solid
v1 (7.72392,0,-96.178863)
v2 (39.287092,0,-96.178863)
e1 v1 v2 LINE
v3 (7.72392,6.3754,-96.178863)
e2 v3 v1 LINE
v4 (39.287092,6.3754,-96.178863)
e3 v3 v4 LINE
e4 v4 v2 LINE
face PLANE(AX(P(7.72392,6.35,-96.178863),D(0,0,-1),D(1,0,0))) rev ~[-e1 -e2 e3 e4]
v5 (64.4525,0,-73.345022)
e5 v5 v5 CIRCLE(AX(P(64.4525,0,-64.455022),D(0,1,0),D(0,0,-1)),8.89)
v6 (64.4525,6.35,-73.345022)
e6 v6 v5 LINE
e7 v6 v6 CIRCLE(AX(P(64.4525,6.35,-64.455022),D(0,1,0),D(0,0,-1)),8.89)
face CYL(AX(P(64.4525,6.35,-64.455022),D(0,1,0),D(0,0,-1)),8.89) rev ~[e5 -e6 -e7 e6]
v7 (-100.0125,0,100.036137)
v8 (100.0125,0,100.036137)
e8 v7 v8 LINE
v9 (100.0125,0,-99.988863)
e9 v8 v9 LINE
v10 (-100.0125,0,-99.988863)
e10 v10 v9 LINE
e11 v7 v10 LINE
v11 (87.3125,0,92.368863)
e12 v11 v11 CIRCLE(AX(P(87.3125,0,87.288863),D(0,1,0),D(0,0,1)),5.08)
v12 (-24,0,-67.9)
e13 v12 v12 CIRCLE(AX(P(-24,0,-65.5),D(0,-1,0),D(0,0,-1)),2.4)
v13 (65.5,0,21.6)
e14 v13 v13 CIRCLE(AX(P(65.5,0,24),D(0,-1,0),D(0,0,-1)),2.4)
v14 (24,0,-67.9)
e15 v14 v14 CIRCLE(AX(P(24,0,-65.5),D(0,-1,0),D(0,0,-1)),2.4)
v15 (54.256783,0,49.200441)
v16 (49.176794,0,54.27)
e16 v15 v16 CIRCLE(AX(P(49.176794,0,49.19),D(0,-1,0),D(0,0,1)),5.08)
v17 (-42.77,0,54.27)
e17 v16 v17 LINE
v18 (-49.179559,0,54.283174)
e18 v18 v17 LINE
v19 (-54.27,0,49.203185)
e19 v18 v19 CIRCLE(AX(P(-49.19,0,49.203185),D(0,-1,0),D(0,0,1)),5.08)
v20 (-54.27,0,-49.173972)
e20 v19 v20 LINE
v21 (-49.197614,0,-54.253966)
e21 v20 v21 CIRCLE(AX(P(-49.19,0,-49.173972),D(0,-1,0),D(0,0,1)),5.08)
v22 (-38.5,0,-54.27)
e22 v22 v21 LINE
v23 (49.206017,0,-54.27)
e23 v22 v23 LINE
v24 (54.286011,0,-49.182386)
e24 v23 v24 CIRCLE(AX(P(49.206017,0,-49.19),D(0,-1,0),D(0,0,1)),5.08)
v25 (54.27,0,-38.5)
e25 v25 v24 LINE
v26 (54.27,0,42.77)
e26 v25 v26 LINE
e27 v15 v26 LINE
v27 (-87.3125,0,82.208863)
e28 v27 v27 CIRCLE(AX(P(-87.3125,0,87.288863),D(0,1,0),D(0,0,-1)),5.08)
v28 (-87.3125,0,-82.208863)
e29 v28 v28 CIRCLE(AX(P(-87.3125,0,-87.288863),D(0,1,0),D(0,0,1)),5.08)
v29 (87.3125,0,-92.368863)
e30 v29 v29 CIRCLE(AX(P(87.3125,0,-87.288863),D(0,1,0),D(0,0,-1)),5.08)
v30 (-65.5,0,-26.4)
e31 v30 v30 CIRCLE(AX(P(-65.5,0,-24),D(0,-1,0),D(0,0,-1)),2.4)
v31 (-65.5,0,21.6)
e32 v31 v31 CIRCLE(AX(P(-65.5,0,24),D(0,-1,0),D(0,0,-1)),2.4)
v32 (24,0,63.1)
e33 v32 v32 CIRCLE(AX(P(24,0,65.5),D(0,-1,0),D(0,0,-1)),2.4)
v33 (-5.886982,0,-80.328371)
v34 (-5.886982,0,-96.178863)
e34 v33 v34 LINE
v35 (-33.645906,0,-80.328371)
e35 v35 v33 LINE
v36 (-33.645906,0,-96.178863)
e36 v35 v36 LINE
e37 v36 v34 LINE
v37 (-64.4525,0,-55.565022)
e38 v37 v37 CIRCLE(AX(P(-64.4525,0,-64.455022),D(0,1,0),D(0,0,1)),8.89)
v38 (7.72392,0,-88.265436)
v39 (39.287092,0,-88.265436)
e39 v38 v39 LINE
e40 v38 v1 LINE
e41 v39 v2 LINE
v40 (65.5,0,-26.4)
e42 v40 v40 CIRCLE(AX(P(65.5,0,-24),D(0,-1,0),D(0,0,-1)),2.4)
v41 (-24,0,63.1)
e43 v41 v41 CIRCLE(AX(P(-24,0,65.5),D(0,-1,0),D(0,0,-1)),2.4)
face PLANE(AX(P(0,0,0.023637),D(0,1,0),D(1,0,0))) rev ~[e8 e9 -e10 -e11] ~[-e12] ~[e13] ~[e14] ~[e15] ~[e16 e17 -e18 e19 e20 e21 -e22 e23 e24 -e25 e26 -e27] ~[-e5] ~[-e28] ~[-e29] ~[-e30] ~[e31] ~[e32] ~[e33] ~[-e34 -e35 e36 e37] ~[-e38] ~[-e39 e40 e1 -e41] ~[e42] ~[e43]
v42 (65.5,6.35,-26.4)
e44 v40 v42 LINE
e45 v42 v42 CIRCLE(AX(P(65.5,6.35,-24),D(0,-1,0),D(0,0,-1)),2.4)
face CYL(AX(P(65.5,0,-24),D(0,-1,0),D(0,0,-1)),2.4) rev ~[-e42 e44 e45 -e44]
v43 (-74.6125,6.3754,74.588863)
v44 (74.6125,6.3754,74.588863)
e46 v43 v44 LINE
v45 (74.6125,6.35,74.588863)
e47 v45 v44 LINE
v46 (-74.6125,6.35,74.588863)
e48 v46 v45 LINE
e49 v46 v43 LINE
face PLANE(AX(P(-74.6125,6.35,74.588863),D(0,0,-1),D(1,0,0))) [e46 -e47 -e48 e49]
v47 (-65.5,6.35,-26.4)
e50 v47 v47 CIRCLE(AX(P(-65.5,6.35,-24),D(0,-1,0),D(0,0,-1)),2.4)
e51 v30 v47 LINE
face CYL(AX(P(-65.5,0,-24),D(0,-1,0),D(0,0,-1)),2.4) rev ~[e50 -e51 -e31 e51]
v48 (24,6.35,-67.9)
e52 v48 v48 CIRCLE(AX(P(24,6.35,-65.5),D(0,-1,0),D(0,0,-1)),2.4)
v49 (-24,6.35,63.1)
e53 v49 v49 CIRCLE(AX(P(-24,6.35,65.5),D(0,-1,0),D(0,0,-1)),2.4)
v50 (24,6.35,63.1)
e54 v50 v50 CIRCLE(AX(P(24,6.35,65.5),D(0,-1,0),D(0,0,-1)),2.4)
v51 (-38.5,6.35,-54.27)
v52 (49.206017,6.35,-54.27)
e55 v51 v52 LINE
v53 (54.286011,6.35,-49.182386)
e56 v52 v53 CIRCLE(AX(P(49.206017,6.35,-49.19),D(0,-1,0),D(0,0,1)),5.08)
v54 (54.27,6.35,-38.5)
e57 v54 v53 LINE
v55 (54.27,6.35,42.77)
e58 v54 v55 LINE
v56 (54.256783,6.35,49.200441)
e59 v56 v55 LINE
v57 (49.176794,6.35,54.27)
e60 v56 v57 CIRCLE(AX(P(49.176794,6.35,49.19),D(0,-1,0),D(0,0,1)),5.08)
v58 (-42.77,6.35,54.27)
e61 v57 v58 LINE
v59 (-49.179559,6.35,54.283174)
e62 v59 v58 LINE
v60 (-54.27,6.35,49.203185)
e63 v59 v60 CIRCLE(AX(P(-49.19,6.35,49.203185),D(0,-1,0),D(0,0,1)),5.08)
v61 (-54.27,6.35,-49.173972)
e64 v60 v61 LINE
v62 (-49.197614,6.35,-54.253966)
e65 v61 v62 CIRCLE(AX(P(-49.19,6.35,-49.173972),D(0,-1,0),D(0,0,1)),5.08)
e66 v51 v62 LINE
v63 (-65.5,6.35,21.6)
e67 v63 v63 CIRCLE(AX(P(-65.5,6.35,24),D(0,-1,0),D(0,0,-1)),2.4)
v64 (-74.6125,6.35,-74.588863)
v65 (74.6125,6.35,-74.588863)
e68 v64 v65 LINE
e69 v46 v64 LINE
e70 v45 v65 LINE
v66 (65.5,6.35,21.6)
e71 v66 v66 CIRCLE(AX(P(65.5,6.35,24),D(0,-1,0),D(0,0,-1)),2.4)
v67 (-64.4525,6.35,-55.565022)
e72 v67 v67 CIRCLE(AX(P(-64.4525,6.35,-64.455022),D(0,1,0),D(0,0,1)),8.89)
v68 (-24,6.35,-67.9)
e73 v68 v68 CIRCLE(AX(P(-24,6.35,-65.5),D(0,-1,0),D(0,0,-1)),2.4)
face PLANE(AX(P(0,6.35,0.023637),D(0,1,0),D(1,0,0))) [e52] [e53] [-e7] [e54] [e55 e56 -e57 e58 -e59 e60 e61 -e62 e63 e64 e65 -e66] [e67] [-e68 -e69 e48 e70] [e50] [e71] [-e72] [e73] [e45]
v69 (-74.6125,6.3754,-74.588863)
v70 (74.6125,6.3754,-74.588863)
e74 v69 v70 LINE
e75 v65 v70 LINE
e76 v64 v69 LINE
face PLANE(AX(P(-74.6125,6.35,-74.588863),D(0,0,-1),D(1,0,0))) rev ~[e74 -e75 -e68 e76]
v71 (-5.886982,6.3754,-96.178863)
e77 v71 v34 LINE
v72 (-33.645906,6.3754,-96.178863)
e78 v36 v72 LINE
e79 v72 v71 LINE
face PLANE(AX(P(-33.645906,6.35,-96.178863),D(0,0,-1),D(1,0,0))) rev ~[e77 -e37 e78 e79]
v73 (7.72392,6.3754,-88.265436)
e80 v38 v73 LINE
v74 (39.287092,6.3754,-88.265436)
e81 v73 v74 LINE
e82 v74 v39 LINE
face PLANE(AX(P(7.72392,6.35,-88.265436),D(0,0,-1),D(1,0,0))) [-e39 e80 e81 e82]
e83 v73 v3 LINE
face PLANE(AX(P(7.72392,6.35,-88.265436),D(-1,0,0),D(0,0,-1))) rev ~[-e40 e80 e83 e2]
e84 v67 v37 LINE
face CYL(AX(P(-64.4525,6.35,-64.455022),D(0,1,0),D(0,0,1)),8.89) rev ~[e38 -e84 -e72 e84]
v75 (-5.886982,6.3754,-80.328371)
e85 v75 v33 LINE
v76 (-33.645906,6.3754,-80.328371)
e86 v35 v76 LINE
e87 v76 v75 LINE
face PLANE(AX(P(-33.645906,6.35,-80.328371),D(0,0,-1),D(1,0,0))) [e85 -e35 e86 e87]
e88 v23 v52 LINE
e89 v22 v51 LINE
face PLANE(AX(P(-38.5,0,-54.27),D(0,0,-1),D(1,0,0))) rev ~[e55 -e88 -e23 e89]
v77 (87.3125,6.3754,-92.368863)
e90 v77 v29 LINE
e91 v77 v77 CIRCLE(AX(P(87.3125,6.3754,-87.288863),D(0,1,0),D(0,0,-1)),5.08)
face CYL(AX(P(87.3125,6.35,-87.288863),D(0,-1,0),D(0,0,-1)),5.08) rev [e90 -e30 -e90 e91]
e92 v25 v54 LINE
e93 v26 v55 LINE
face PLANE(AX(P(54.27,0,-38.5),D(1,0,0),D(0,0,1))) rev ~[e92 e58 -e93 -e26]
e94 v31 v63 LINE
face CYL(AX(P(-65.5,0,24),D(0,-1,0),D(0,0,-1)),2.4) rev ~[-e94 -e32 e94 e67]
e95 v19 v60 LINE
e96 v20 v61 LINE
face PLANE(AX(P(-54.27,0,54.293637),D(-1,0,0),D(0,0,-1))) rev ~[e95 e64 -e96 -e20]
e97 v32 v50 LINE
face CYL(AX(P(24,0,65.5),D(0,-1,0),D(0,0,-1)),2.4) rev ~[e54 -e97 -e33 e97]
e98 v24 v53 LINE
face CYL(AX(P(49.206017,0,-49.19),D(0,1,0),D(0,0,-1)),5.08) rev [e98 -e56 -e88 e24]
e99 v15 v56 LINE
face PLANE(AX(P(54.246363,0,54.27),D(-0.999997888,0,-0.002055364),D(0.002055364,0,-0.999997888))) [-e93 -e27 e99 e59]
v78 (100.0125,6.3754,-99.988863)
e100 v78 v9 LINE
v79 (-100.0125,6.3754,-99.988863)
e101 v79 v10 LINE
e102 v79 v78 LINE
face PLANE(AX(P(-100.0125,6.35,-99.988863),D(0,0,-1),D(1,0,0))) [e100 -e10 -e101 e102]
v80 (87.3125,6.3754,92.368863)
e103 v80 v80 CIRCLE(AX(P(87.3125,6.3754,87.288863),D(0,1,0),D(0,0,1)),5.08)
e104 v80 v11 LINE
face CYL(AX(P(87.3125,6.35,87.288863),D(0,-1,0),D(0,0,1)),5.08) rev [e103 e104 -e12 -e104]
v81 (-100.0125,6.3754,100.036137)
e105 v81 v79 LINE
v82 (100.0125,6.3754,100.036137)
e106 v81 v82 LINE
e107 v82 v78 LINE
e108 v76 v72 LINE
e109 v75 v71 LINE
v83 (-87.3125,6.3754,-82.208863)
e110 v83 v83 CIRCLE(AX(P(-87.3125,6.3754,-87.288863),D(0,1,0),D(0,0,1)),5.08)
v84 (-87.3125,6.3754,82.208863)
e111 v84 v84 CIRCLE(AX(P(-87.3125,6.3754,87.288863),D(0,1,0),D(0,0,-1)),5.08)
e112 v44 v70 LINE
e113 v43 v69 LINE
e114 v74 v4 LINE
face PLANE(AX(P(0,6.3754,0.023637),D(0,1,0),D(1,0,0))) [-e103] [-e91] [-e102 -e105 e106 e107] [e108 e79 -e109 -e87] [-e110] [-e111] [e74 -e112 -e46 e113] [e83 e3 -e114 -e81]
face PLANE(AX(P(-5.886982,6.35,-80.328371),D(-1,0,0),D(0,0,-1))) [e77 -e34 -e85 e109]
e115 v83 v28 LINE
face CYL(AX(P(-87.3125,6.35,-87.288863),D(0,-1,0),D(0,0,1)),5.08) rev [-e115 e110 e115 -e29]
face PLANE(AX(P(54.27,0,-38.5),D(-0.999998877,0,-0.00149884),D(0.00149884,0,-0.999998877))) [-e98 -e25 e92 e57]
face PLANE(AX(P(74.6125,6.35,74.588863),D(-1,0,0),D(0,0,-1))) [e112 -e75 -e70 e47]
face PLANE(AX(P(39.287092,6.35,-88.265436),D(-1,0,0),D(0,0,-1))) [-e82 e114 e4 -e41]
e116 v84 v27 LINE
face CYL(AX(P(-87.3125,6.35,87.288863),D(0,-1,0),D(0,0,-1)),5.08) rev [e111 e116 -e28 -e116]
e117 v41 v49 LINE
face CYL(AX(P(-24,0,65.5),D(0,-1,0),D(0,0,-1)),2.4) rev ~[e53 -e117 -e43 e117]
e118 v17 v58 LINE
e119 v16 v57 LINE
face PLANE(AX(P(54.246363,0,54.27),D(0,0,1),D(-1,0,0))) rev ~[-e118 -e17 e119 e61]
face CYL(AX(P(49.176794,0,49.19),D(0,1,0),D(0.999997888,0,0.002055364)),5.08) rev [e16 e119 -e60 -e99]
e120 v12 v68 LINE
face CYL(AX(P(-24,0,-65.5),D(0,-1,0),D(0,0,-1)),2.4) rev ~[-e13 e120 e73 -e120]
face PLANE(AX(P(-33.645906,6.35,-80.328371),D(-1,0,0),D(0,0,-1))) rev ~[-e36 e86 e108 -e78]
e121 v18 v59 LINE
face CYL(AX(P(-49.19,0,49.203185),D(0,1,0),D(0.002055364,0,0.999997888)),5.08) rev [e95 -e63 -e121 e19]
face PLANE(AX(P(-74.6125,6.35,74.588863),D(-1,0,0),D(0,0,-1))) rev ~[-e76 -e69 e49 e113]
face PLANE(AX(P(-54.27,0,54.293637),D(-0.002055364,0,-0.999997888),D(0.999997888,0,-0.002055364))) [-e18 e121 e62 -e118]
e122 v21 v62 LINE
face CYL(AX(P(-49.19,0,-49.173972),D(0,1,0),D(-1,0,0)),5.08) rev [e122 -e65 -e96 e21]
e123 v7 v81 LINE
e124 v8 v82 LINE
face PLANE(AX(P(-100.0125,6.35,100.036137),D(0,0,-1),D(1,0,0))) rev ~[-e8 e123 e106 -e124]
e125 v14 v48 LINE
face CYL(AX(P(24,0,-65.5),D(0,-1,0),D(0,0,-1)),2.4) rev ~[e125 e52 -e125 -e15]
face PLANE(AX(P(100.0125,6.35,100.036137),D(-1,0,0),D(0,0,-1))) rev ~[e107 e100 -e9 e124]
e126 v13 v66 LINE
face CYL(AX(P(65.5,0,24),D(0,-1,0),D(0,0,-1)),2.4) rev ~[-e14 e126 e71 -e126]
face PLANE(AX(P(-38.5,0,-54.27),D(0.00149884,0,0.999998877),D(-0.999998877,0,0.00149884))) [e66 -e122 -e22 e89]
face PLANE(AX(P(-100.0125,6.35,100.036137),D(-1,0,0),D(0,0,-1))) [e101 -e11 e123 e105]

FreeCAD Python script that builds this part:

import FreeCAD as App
import Part
import Sketcher

V = App.Vector
Q = App.Units.Quantity


def edges_at(feature, points):
    """Names of the edges that pass closest to the given points."""
    edges = feature.Shape.Edges
    near = lambda p: min(range(len(edges)), key=lambda i: edges[i].distToShape(Part.Vertex(*p))[0])
    return sorted({f"Edge{near(p) + 1}" for p in points})


def add_polygon(sketch, points):
    """Adds a closed chain of lines whose ends are joined by coincident constraints."""
    first, n = sketch.GeometryCount, len(points)
    for a, b in zip(points, points[1:] + points[:1]):
        sketch.addGeometry(Part.LineSegment(App.Vector(*a, 0), App.Vector(*b, 0)), False)
    for i in range(n):
        sketch.addConstraint(Sketcher.Constraint("Coincident", first + i, 2, first + (i + 1) % n, 1))

doc = App.newDocument("Part")
params = doc.addObject("Spreadsheet::Sheet", "Params")
for row, (alias, value) in enumerate([
    ("sketch1_diameter", "0.4 in"),
    ("sketch1_width", "7.875 in"),
    ("pad1_length", "0.25 in"),
    ("fillet_radius", "0.2 in"),
    ("sketch3_diameter", "0.4 in"),
    ("sketch3_width", "7.875 in"),
    ("pad2_length", "0.001 in"),
    ("sketch4_diameter", "0.7 in"),
], start=1):
    params.set(f"A{row}", alias)
    params.set(f"B{row}", "=" + value)
    params.setAlias(f"B{row}", alias)

body = doc.addObject("PartDesign::Body", "Body")

# Sketch on XZ plane
sketch1 = body.newObject("Sketcher::SketchObject", "Sketch")
sketch1.AttachmentSupport = (doc.getObject("XZ_Plane"), [""])
sketch1.MapMode = "FlatFace"
add_polygon(sketch1, [(-100.0125, -99.988863), (-100.0125, 100.036137), (100.0125, 100.036137), (100.0125, -99.988863)])  # lines 0-3
sketch1.addGeometry(Part.Circle(V(-87.3125, 87.288863, 0), V(0, 0, 1), 5.08), False)  # 4
sketch1.addGeometry(Part.Circle(V(87.3125, 87.288863, 0), V(0, 0, 1), 5.08), False)  # 5
add_polygon(sketch1, [(54.27, -38.5), (54.27, 42.77), (54.246363, 54.27), (-42.77, 54.27), (-54.27, 54.293637), (-54.27, -54.246363), (-38.5, -54.27), (54.293637, -54.27)])  # lines 6-13
sketch1.addGeometry(Part.Circle(V(-87.3125, -87.288863, 0), V(0, 0, 1), 5.08), False)  # 14
add_polygon(sketch1, [(-5.886982, -80.328371), (-33.645906, -80.328371), (-33.645906, -96.178863), (-5.886982, -96.178863)])  # lines 15-18
add_polygon(sketch1, [(39.287092, -88.265436), (7.72392, -88.265436), (7.72392, -96.178863), (39.287092, -96.178863)])  # lines 19-22
sketch1.addGeometry(Part.Circle(V(87.3125, -87.288863, 0), V(0, 0, 1), 5.08), False)  # 23
sketch1.addConstraint([
    Sketcher.Constraint("Vertical", 0),
    Sketcher.Constraint("Horizontal", 1),
    Sketcher.Constraint("Vertical", 2),
    Sketcher.Constraint("Horizontal", 3),
    Sketcher.Constraint("Vertical", 6),
    Sketcher.Constraint("Horizontal", 8),
    Sketcher.Constraint("Vertical", 10),
    Sketcher.Constraint("Horizontal", 12),
    Sketcher.Constraint("Horizontal", 15),
    Sketcher.Constraint("Vertical", 16),
    Sketcher.Constraint("Horizontal", 17),
    Sketcher.Constraint("Vertical", 18),
    Sketcher.Constraint("Horizontal", 19),
    Sketcher.Constraint("Vertical", 20),
    Sketcher.Constraint("Horizontal", 21),
    Sketcher.Constraint("Vertical", 22),
    Sketcher.Constraint("Equal", 4, 5),
    Sketcher.Constraint("Equal", 5, 14),
    Sketcher.Constraint("Equal", 14, 23),
    Sketcher.Constraint("Symmetric", 5, 3, 14, 3, -1, 1),
    Sketcher.Constraint("Symmetric", 4, 3, 23, 3, -1, 1),
    Sketcher.Constraint("Symmetric", 4, 3, 5, 3, -2),
    Sketcher.Constraint("Horizontal", 17, 2, 20, 2),
    Sketcher.Constraint("Equal", 3, 0),
    Sketcher.Constraint("Equal", 7, 9),
    Sketcher.Constraint("Equal", 11, 13),
    Sketcher.Constraint("Diameter", 4, Q("0.4 in")),
    Sketcher.Constraint("DistanceX", 0, 2, 4, 3, Q("0.5 in")),
    Sketcher.Constraint("DistanceX", 5, 3, 1, 2, Q("0.5 in")),
    Sketcher.Constraint("DistanceY", 2, 2, 23, 3, Q("0.5 in")),
    Sketcher.Constraint("DistanceX", 1, 1, 1, 2, Q("7.875 in")),
    Sketcher.Constraint("DistanceY", 16, 2, 14, 3, Q("0.35 in")),
    Sketcher.Constraint("DistanceY", 6, 1, 6, 2, 81.27),
    Sketcher.Constraint("DistanceY", 10, 2, 10, 1, 108.54),
    Sketcher.Constraint("DistanceX", 19, 2, 19, 1, 31.563172),
    Sketcher.Constraint("DistanceX", -1, 1, 6, 2, 54.27),
    Sketcher.Constraint("DistanceY", -1, 1, 6, 2, 42.77),
    Sketcher.Constraint("DistanceY", -1, 1, 7, 2, 54.27),
    Sketcher.Constraint("DistanceX", 8, 2, -1, 1, 42.77),
    Sketcher.Constraint("DistanceX", 11, 2, -1, 1, 38.5),
    Sketcher.Constraint("DistanceY", 9, 2, 0, 2, 45.7425),
    Sketcher.Constraint("DistanceX", 8, 2, 8, 1, 97.016363),
    Sketcher.Constraint("DistanceX", 12, 1, 12, 2, 92.793637),
    Sketcher.Constraint("DistanceX", 15, 2, 15, 1, 27.758924),
    Sketcher.Constraint("DistanceY", 16, 2, 16, 1, 15.850492),
    Sketcher.Constraint("DistanceY", 20, 2, 20, 1, 7.913428),
    Sketcher.Constraint("DistanceY", 15, 2, -1, 1, 80.328371),
    Sketcher.Constraint("DistanceX", -1, 1, 19, 2, 7.72392),
    Sketcher.Constraint("DistanceX", 17, 2, 12, 2, 60.180619),
])
sketch1.setExpression("Constraints[46]", "Params.sketch1_diameter")
sketch1.setExpression("Constraints[50]", "Params.sketch1_width")
pad1 = body.newObject("PartDesign::Pad", "Pad")
pad1.Profile = sketch1
pad1.setExpression("Length", "Params.pad1_length")
pad1.Reversed = True
doc.recompute()

fillet = body.newObject("PartDesign::Fillet", "Fillet")
fillet.Base = (pad1, edges_at(pad1, [
    (-54.27, 3.175, -54.246),
    (-54.27, 3.175, 54.294),
    (54.246, 3.175, 54.27),
    (54.294, 3.175, -54.27),
]))
fillet.setExpression("Radius", "Params.fillet_radius")

# Sketch on XZ plane
sketch2 = body.newObject("Sketcher::SketchObject", "Sketch001")
sketch2.AttachmentSupport = (doc.getObject("XZ_Plane"), [""])
sketch2.MapMode = "FlatFace"
sketch2.addGeometry([
    Part.Circle(V(-24, 65.5, 0), V(0, 0, 1), 2.4),  # 0
    Part.Circle(V(24, 65.5, 0), V(0, 0, 1), 2.4),  # 1
    Part.Circle(V(65.5, 24, 0), V(0, 0, 1), 2.4),  # 2
    Part.Circle(V(65.5, -24, 0), V(0, 0, 1), 2.4),  # 3
    Part.Circle(V(24, -65.5, 0), V(0, 0, 1), 2.4),  # 4
    Part.Circle(V(-24, -65.5, 0), V(0, 0, 1), 2.4),  # 5
    Part.Circle(V(-65.5, -24, 0), V(0, 0, 1), 2.4),  # 6
    Part.Circle(V(-65.5, 24, 0), V(0, 0, 1), 2.4),  # 7
], False)
sketch2.addConstraint([
    Sketcher.Constraint("Equal", 0, 1),
    Sketcher.Constraint("Equal", 1, 2),
    Sketcher.Constraint("Equal", 2, 3),
    Sketcher.Constraint("Equal", 3, 4),
    Sketcher.Constraint("Equal", 4, 5),
    Sketcher.Constraint("Equal", 5, 6),
    Sketcher.Constraint("Equal", 6, 7),
    Sketcher.Constraint("Symmetric", 0, 3, 4, 3, -1, 1),
    Sketcher.Constraint("Symmetric", 1, 3, 5, 3, -1, 1),
    Sketcher.Constraint("Symmetric", 2, 3, 6, 3, -1, 1),
    Sketcher.Constraint("Symmetric", 3, 3, 7, 3, -1, 1),
    Sketcher.Constraint("Symmetric", 0, 3, 1, 3, -2),
    Sketcher.Constraint("Symmetric", 3, 3, 6, 3, -2),
    Sketcher.Constraint("Diameter", 0, 4.8),
    Sketcher.Constraint("DistanceX", 0, 3, -1, 1, 24.0),
    Sketcher.Constraint("DistanceY", -1, 1, 0, 3, 65.5),
    Sketcher.Constraint("DistanceX", -1, 1, 2, 3, 65.5),
    Sketcher.Constraint("DistanceY", -1, 1, 2, 3, 24.0),
])
pocket1 = body.newObject("PartDesign::Pocket", "Pocket")
pocket1.Profile = sketch2
pocket1.Type = "ThroughAll"

# Sketch on XZ plane
sketch3 = body.newObject("Sketcher::SketchObject", "Sketch002")
sketch3.AttachmentSupport = (doc.getObject("XZ_Plane"), [""])
sketch3.MapMode = "FlatFace"
sketch3.AttachmentOffset = App.Placement(V(0, 0, -0.25 * 25.4), App.Rotation())
add_polygon(sketch3, [(-100.0125, -99.988863), (-100.0125, 100.036137), (100.0125, 100.036137), (100.0125, -99.988863)])  # lines 0-3
sketch3.addGeometry(Part.Circle(V(-87.3125, 87.288863, 0), V(0, 0, 1), 5.08), False)  # 4
sketch3.addGeometry(Part.Circle(V(87.3125, 87.288863, 0), V(0, 0, 1), 5.08), False)  # 5
add_polygon(sketch3, [(74.6125, 74.588863), (-74.6125, 74.588863), (-74.6125, -74.588863), (74.6125, -74.588863)])  # lines 6-9
sketch3.addGeometry(Part.Circle(V(-87.3125, -87.288863, 0), V(0, 0, 1), 5.08), False)  # 10
add_polygon(sketch3, [(-5.886982, -80.328371), (-33.645906, -80.328371), (-33.645906, -96.178863), (-5.886982, -96.178863)])  # lines 11-14
add_polygon(sketch3, [(39.287092, -88.265436), (7.72392, -88.265436), (7.72392, -96.178863), (39.287092, -96.178863)])  # lines 15-18
sketch3.addGeometry(Part.Circle(V(87.3125, -87.288863, 0), V(0, 0, 1), 5.08), False)  # 19
sketch3.addConstraint([
    Sketcher.Constraint("Vertical", 0),
    Sketcher.Constraint("Horizontal", 1),
    Sketcher.Constraint("Vertical", 2),
    Sketcher.Constraint("Horizontal", 3),
    Sketcher.Constraint("Horizontal", 6),
    Sketcher.Constraint("Vertical", 7),
    Sketcher.Constraint("Horizontal", 8),
    Sketcher.Constraint("Vertical", 9),
    Sketcher.Constraint("Horizontal", 11),
    Sketcher.Constraint("Vertical", 12),
    Sketcher.Constraint("Horizontal", 13),
    Sketcher.Constraint("Vertical", 14),
    Sketcher.Constraint("Horizontal", 15),
    Sketcher.Constraint("Vertical", 16),
    Sketcher.Constraint("Horizontal", 17),
    Sketcher.Constraint("Vertical", 18),
    Sketcher.Constraint("Equal", 4, 5),
    Sketcher.Constraint("Equal", 5, 10),
    Sketcher.Constraint("Equal", 10, 19),
    Sketcher.Constraint("Symmetric", 5, 3, 10, 3, -1, 1),
    Sketcher.Constraint("Symmetric", 4, 3, 19, 3, -1, 1),
    Sketcher.Constraint("Symmetric", 6, 2, 8, 2, -1, 1),
    Sketcher.Constraint("Symmetric", 4, 3, 5, 3, -2),
    Sketcher.Constraint("Horizontal", 13, 2, 16, 2),
    Sketcher.Constraint("Equal", 3, 0),
    Sketcher.Constraint("Diameter", 4, Q("0.4 in")),
    Sketcher.Constraint("DistanceX", 0, 2, 6, 2, Q("1 in")),
    Sketcher.Constraint("DistanceY", 3, 2, 7, 2, Q("1 in")),
    Sketcher.Constraint("DistanceX", 8, 2, 2, 2, Q("1 in")),
    Sketcher.Constraint("DistanceX", 0, 2, 4, 3, Q("0.5 in")),
    Sketcher.Constraint("DistanceY", 2, 2, 19, 3, Q("0.5 in")),
    Sketcher.Constraint("DistanceX", 1, 1, 1, 2, Q("7.875 in")),
    Sketcher.Constraint("DistanceY", 12, 2, 7, 2, Q("0.85 in")),
    Sketcher.Constraint("DistanceX", 15, 2, 15, 1, 31.563172),
    Sketcher.Constraint("DistanceX", 11, 2, 11, 1, 27.758924),
    Sketcher.Constraint("DistanceY", 7, 2, 7, 1, 149.177727),
    Sketcher.Constraint("DistanceY", 12, 2, 12, 1, 15.850492),
    Sketcher.Constraint("DistanceY", 16, 2, 16, 1, 7.913428),
    Sketcher.Constraint("DistanceX", -1, 1, 15, 2, 7.72392),
    Sketcher.Constraint("DistanceX", 11, 2, -1, 1, 33.645906),
])
sketch3.setExpression("Constraints[41]", "Params.sketch3_diameter")
sketch3.setExpression("Constraints[47]", "Params.sketch3_width")
pad2 = body.newObject("PartDesign::Pad", "Pad001")
pad2.Profile = sketch3
pad2.setExpression("Length", "Params.pad2_length")
pad2.Reversed = True

# Sketch on XZ plane
sketch4 = body.newObject("Sketcher::SketchObject", "Sketch003")
sketch4.AttachmentSupport = (doc.getObject("XZ_Plane"), [""])
sketch4.MapMode = "FlatFace"
sketch4.AttachmentOffset = App.Placement(V(0, 0, -0.25 * 25.4), App.Rotation())
sketch4.addGeometry([
    Part.Circle(V(-64.4525, -64.455022, 0), V(0, 0, 1), 8.89),
    Part.Circle(V(64.4525, -64.455022, 0), V(0, 0, 1), 8.89),
], False)
sketch4.addConstraint([
    Sketcher.Constraint("Equal", 0, 1),
    Sketcher.Constraint("Symmetric", 0, 3, 1, 3, -2),
    Sketcher.Constraint("Diameter", 0, Q("0.7 in")),
    Sketcher.Constraint("DistanceX", 0, 3, 1, 3, Q("5.075 in")),
    Sketcher.Constraint("DistanceY", 0, 3, -1, 1, 64.455022),
])
sketch4.setExpression("Constraints[2]", "Params.sketch4_diameter")
pocket2 = body.newObject("PartDesign::Pocket", "Pocket001")
pocket2.Profile = sketch4
pocket2.Type = "ThroughAll"
pocket2.Reversed = True

doc.recompute()
